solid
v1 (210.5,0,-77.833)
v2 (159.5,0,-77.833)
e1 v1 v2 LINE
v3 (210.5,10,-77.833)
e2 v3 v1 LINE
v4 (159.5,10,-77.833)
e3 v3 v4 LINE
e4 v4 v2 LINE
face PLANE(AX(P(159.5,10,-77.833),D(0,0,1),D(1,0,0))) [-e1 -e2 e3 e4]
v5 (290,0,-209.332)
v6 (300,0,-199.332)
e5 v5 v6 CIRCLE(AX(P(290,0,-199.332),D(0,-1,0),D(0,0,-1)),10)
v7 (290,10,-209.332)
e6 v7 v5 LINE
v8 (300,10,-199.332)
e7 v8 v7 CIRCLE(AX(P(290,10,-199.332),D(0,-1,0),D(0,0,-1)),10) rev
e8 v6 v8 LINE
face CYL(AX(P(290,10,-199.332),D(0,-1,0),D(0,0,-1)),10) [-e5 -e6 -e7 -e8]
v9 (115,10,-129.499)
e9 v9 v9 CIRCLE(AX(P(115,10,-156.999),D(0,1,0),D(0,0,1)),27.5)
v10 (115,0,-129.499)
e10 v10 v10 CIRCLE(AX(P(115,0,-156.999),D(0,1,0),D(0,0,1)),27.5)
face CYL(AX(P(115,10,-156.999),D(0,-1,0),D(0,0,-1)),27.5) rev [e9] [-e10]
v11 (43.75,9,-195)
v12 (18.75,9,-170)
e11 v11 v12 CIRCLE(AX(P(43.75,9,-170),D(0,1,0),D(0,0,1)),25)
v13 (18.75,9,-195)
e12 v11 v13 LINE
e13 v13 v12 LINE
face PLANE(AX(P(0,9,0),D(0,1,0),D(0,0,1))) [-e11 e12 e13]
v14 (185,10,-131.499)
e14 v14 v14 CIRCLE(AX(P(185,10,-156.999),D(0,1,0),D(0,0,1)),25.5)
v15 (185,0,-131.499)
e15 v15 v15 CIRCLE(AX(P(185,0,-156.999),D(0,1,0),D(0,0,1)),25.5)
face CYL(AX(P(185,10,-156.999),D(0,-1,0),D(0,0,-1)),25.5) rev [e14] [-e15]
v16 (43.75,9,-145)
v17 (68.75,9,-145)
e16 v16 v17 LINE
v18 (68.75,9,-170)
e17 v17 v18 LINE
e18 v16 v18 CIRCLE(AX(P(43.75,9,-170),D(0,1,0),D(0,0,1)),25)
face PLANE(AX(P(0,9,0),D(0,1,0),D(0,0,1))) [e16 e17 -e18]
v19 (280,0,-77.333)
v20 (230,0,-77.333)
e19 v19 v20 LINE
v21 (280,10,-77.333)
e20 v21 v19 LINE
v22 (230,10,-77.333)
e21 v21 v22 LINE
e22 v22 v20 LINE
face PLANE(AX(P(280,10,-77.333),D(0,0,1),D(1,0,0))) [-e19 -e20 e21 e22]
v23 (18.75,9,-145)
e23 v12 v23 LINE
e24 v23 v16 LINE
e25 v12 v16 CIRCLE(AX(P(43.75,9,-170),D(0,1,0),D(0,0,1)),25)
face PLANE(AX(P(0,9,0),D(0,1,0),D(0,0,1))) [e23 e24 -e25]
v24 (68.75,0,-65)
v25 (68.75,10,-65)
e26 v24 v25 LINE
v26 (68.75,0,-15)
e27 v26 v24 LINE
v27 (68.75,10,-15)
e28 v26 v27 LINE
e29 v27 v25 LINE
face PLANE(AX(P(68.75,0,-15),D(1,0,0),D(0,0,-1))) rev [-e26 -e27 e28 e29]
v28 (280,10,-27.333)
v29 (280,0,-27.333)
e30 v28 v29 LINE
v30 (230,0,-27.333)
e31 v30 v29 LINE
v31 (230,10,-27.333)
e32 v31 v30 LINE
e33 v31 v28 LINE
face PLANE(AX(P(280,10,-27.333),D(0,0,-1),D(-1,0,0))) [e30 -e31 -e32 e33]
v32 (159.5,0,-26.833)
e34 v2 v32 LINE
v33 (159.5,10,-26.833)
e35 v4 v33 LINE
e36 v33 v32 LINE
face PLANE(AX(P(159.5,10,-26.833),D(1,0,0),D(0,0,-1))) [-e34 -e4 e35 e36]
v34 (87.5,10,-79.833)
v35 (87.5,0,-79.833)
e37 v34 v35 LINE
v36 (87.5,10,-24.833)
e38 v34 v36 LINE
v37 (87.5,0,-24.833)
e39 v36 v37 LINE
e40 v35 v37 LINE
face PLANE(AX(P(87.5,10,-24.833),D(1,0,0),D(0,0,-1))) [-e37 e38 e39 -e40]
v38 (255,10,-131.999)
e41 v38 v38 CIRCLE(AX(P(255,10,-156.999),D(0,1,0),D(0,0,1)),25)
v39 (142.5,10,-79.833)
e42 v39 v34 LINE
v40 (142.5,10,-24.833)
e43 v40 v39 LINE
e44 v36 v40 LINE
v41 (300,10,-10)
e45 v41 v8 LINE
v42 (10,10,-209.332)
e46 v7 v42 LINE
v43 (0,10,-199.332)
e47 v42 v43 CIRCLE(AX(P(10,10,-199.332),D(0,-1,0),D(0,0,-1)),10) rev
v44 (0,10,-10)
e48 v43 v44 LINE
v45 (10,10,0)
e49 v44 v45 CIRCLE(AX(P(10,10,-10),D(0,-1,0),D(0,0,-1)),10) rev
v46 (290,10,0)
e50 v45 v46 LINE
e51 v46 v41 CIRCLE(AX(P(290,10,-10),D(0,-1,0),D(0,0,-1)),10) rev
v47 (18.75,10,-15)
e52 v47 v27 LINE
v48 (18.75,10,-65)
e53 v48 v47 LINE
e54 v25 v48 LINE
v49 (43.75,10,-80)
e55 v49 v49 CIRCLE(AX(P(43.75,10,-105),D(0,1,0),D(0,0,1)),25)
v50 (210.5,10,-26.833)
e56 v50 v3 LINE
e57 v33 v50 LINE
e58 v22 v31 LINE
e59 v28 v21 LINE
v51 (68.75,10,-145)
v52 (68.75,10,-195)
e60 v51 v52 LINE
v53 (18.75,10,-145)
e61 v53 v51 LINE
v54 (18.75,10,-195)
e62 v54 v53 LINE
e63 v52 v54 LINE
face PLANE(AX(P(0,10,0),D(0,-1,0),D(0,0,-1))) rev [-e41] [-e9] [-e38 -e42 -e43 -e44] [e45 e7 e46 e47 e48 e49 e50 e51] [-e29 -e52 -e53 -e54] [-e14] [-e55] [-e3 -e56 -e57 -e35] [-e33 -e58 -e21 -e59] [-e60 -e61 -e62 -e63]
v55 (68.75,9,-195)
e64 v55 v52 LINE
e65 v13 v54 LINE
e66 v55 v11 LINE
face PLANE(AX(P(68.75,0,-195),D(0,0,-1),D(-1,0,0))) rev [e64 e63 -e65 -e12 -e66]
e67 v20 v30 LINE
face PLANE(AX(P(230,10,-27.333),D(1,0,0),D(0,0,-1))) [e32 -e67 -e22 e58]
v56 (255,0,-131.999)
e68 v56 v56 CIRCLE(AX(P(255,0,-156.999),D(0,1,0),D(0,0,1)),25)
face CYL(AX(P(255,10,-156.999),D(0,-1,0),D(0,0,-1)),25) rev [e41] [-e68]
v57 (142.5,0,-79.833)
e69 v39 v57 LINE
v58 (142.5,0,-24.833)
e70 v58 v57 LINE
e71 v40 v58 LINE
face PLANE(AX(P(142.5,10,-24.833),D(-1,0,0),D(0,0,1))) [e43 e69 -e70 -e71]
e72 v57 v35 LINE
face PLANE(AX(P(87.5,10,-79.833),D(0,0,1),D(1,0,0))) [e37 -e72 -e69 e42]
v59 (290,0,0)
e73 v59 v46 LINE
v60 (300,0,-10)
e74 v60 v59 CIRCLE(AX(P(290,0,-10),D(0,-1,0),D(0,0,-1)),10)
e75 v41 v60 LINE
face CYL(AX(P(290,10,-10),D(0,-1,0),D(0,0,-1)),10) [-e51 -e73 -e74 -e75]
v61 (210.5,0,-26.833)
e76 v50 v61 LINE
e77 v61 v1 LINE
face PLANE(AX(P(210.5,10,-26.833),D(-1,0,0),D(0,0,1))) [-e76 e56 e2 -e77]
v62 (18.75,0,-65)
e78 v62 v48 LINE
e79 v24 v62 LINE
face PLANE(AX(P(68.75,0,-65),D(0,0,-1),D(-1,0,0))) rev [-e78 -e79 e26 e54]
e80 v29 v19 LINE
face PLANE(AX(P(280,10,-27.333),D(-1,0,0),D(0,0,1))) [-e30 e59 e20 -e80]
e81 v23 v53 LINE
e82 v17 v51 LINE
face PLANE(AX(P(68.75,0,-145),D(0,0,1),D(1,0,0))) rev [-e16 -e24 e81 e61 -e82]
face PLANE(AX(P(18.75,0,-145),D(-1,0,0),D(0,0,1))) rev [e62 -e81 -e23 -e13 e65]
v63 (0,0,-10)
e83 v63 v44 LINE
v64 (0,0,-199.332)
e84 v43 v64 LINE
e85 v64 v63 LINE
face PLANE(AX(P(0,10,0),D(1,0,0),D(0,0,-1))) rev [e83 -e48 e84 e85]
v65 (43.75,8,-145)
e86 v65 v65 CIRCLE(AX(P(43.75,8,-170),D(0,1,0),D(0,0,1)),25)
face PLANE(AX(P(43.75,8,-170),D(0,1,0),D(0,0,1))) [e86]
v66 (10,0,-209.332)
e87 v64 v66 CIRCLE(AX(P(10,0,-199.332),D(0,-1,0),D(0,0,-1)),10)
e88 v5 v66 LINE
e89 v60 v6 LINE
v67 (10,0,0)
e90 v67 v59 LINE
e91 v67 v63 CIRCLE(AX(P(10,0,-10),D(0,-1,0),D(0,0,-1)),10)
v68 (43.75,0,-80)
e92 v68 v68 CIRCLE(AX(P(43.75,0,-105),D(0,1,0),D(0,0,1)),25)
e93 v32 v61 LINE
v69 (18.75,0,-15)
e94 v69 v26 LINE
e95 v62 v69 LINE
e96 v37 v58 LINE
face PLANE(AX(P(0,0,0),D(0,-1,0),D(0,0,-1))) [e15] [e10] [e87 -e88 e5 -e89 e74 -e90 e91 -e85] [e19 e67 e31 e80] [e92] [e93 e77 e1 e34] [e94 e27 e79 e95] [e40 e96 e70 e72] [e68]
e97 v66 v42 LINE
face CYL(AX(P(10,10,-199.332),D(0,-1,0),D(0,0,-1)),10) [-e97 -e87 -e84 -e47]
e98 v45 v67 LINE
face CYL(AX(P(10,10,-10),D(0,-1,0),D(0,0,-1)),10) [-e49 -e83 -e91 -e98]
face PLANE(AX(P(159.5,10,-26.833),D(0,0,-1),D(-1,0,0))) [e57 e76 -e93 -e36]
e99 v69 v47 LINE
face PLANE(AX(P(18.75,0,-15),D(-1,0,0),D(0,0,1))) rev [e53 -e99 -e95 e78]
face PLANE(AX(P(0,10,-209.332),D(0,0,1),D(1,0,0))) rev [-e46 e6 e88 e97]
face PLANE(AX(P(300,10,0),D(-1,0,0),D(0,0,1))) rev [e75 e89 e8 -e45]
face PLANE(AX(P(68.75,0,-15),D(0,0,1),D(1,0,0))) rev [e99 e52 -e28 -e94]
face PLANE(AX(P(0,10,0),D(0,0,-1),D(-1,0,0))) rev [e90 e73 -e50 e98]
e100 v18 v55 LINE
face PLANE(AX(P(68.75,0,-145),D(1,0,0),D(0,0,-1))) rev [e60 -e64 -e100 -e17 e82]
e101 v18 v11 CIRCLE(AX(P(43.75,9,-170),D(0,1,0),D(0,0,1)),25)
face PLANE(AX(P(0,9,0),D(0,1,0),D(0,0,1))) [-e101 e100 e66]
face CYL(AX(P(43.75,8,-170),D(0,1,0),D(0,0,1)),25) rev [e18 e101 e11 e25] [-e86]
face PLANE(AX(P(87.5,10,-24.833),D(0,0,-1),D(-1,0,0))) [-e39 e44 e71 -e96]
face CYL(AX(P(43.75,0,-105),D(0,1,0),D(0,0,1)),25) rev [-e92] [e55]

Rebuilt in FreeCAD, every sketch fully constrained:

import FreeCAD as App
import Part
import Sketcher

V = App.Vector


def edges_at(feature, points):
    """Names of the edges that pass closest to the given points."""
    edges = feature.Shape.Edges
    near = lambda p: min(range(len(edges)), key=lambda i: edges[i].distToShape(Part.Vertex(*p))[0])
    return sorted({f"Edge{near(p) + 1}" for p in points})


def add_polygon(sketch, points):
    """Adds a closed chain of lines whose ends are joined by coincident constraints."""
    first, n = sketch.GeometryCount, len(points)
    for a, b in zip(points, points[1:] + points[:1]):
        sketch.addGeometry(Part.LineSegment(App.Vector(*a, 0), App.Vector(*b, 0)), False)
    for i in range(n):
        sketch.addConstraint(Sketcher.Constraint("Coincident", first + i, 2, first + (i + 1) % n, 1))

doc = App.newDocument("Part")
params = doc.addObject("Spreadsheet::Sheet", "Params")
for row, (alias, value) in enumerate([
    ("sketch1_diameter", "50 mm"),
    ("sketch1_diameter2", "55 mm"),
    ("sketch1_diameter3", "51 mm"),
    ("sketch1_width", "300 mm"),
    ("sketch1_width2", "55 mm"),
    ("pad1_length", "10 mm"),
    ("sketch2_width", "50 mm"),
    ("pocket1_length", "1 mm"),
    ("sketch3_diameter", "50 mm"),
    ("pad2_length", "8 mm"),
    ("sketch4_width", "50 mm"),
    ("fillet_radius", "10 mm"),
    ("sketch5_width", "50 mm"),
    ("pad3_length", "10 mm"),
    ("sketch6_diameter", "50 mm"),
    ("sketch6_width", "50 mm"),
    ("sketch7_width", "50 mm"),
    ("pad4_length", "9 mm"),
    ("sketch8_diameter", "50 mm"),
    ("pocket4_length", "1 mm"),
], start=1):
    params.set(f"A{row}", alias)
    params.set(f"B{row}", "=" + value)
    params.setAlias(f"B{row}", alias)

body = doc.addObject("PartDesign::Body", "Body")

# Sketch on XZ plane
sketch1 = doc.addObject("Sketcher::SketchObject", "Sketch")
body.addObject(sketch1)
sketch1.AttachmentSupport = (doc.XZ_Plane, [""])
sketch1.MapMode = "FlatFace"
add_polygon(sketch1, [(0, -209), (0, 0), (300, 0), (300, -209)])  # lines 0-3
sketch1.addGeometry(Part.Circle(V(45, -52, 0), V(0, 0, 1), 25), False)  # 4
add_polygon(sketch1, [(142, -25), (88, -25), (88, -80), (142, -80)])  # lines 5-8
add_polygon(sketch1, [(210, -27), (160, -27), (160, -78), (210, -78)])  # lines 9-12
add_polygon(sketch1, [(280, -27), (230, -27), (230, -77), (280, -77)])  # lines 13-16
sketch1.addGeometry(Part.Circle(V(45, -157, 0), V(0, 0, 1), 25), False)  # 17
sketch1.addGeometry(Part.Circle(V(115, -157, 0), V(0, 0, 1), 28), False)  # 18
sketch1.addGeometry(Part.Circle(V(185, -157, 0), V(0, 0, 1), 26), False)  # 19
sketch1.addGeometry(Part.Circle(V(255, -157, 0), V(0, 0, 1), 25), False)  # 20
sketch1.addConstraint([
    Sketcher.Constraint("Vertical", 0),
    Sketcher.Constraint("Horizontal", 1),
    Sketcher.Constraint("Vertical", 2),
    Sketcher.Constraint("Horizontal", 3),
    Sketcher.Constraint("Horizontal", 5),
    Sketcher.Constraint("Vertical", 6),
    Sketcher.Constraint("Horizontal", 7),
    Sketcher.Constraint("Vertical", 8),
    Sketcher.Constraint("Horizontal", 9),
    Sketcher.Constraint("Vertical", 10),
    Sketcher.Constraint("Horizontal", 11),
    Sketcher.Constraint("Vertical", 12),
    Sketcher.Constraint("Horizontal", 13),
    Sketcher.Constraint("Vertical", 14),
    Sketcher.Constraint("Horizontal", 15),
    Sketcher.Constraint("Vertical", 16),
    Sketcher.Constraint("Coincident", 0, 2, -1, 1),
    Sketcher.Constraint("Equal", 4, 17),
    Sketcher.Constraint("Equal", 17, 20),
    Sketcher.Constraint("Horizontal", 17, 3, 18, 3),
    Sketcher.Constraint("Horizontal", 18, 3, 19, 3),
    Sketcher.Constraint("Horizontal", 19, 3, 20, 3),
    Sketcher.Constraint("Vertical", 4, 3, 17, 3),
    Sketcher.Constraint("Equal", 7, 6),
    Sketcher.Constraint("Equal", 11, 10),
    Sketcher.Constraint("Equal", 15, 14),
    Sketcher.Constraint("Diameter", 4, 50.0),
    Sketcher.Constraint("Diameter", 18, 55.0),
    Sketcher.Constraint("Diameter", 19, 51.0),
    Sketcher.Constraint("DistanceX", 1, 1, 1, 2, 300.0),
    Sketcher.Constraint("DistanceX", 5, 2, 5, 1, 55.0),
    Sketcher.Constraint("DistanceX", 9, 2, 9, 1, 51.0),
    Sketcher.Constraint("DistanceX", 13, 2, 13, 1, 50.0),
    Sketcher.Constraint("DistanceX", -1, 1, 4, 3, 45.0),
    Sketcher.Constraint("DistanceX", -1, 1, 18, 3, 115.0),
    Sketcher.Constraint("DistanceX", -1, 1, 19, 3, 185.0),
    Sketcher.Constraint("DistanceX", -1, 1, 20, 3, 255.0),
    Sketcher.Constraint("DistanceX", -1, 1, 13, 2, 230.0),
    Sketcher.Constraint("DistanceX", 8, 2, 9, 2, 17.0),
    Sketcher.Constraint("DistanceY", 9, 2, 8, 2, 2.0),
    Sketcher.Constraint("DistanceX", -1, 1, 5, 2, 87.5),
    Sketcher.Constraint("DistanceY", 4, 3, 5, 2, 27.5),
    Sketcher.Constraint("DistanceY", 13, 2, 12, 2, 0.5),
    Sketcher.Constraint("DistanceY", 0, 1, 0, 2, 209.332),
    Sketcher.Constraint("DistanceY", 4, 3, -1, 1, 52.333),
    Sketcher.Constraint("DistanceY", 17, 3, -1, 1, 156.999),
])
sketch1.setExpression("Constraints[42]", "Params.sketch1_diameter")
sketch1.setExpression("Constraints[43]", "Params.sketch1_diameter2")
sketch1.setExpression("Constraints[44]", "Params.sketch1_diameter3")
sketch1.setExpression("Constraints[45]", "Params.sketch1_width")
sketch1.setExpression("Constraints[46]", "Params.sketch1_width2")
pad1 = doc.addObject("PartDesign::Pad", "Pad")
body.addObject(pad1)
pad1.Profile = sketch1
pad1.setExpression("Length", "Params.pad1_length")
pad1.Reversed = True

# Sketch on XZ plane
sketch2 = doc.addObject("Sketcher::SketchObject", "Sketch001")
body.addObject(sketch2)
sketch2.AttachmentSupport = (doc.XZ_Plane, [""])
sketch2.MapMode = "FlatFace"
sketch2.AttachmentOffset = App.Placement(V(0, 0, -10), App.Rotation())
add_polygon(sketch2, [(20, -182), (20, -132), (70, -132), (70, -182)])  # lines 0-3
sketch2.addConstraint([
    Sketcher.Constraint("Vertical", 0),
    Sketcher.Constraint("Horizontal", 1),
    Sketcher.Constraint("Vertical", 2),
    Sketcher.Constraint("Horizontal", 3),
    Sketcher.Constraint("Equal", 3, 0),
    Sketcher.Constraint("DistanceX", 1, 1, 1, 2, 50.0),
    Sketcher.Constraint("DistanceX", -1, 1, 0, 2, 20.0),
    Sketcher.Constraint("DistanceY", 0, 2, -1, 1, 131.999),
])
sketch2.setExpression("Constraints[9]", "Params.sketch2_width")
pocket1 = doc.addObject("PartDesign::Pocket", "Pocket")
body.addObject(pocket1)
pocket1.Profile = sketch2
pocket1.setExpression("Length", "Params.pocket1_length")
pocket1.Reversed = True

# Sketch on XZ plane
sketch3 = doc.addObject("Sketcher::SketchObject", "Sketch002")
body.addObject(sketch3)
sketch3.AttachmentSupport = (doc.XZ_Plane, [""])
sketch3.MapMode = "FlatFace"
sketch3.addGeometry(Part.Circle(V(45, -157, 0), V(0, 0, 1), 25), False)
sketch3.addConstraint([
    Sketcher.Constraint("Diameter", 0, 50.0),
    Sketcher.Constraint("DistanceX", -1, 1, 0, 3, 45.0),
    Sketcher.Constraint("DistanceY", 0, 3, -1, 1, 156.999),
])
sketch3.setExpression("Constraints[0]", "Params.sketch3_diameter")
pad2 = doc.addObject("PartDesign::Pad", "Pad001")
body.addObject(pad2)
pad2.Profile = sketch3
pad2.setExpression("Length", "Params.pad2_length")
pad2.Reversed = True

# Sketch on XZ plane
sketch4 = doc.addObject("Sketcher::SketchObject", "Sketch003")
body.addObject(sketch4)
sketch4.AttachmentSupport = (doc.XZ_Plane, [""])
sketch4.MapMode = "FlatFace"
sketch4.AttachmentOffset = App.Placement(V(0, 0, -10), App.Rotation())
add_polygon(sketch4, [(20, -77), (20, -27), (70, -27), (70, -77)])  # lines 0-3
sketch4.addConstraint([
    Sketcher.Constraint("Vertical", 0),
    Sketcher.Constraint("Horizontal", 1),
    Sketcher.Constraint("Vertical", 2),
    Sketcher.Constraint("Horizontal", 3),
    Sketcher.Constraint("Equal", 3, 0),
    Sketcher.Constraint("DistanceX", 1, 1, 1, 2, 50.0),
    Sketcher.Constraint("DistanceX", -1, 1, 0, 2, 20.0),
    Sketcher.Constraint("DistanceY", 0, 2, -1, 1, 27.333),
])
sketch4.setExpression("Constraints[9]", "Params.sketch4_width")
pocket2 = doc.addObject("PartDesign::Pocket", "Pocket001")
body.addObject(pocket2)
pocket2.Profile = sketch4
pocket2.Type = "ThroughAll"
pocket2.Reversed = True
doc.recompute()

fillet = doc.addObject("PartDesign::Fillet", "Fillet")
body.addObject(fillet)
fillet.Base = (pocket2, edges_at(pocket2, [
    (0, 5, -209.332),
    (300, 5, -209.332),
    (300, 5, 0),
    (0, 5, 0),
]))
fillet.setExpression("Radius", "Params.fillet_radius")

# Sketch on XZ plane
sketch5 = doc.addObject("Sketcher::SketchObject", "Sketch004")
body.addObject(sketch5)
sketch5.AttachmentSupport = (doc.XZ_Plane, [""])
sketch5.MapMode = "FlatFace"
sketch5.AttachmentOffset = App.Placement(V(0, 0, -10), App.Rotation())
add_polygon(sketch5, [(20, -182), (20, -132), (70, -132), (70, -182)])  # lines 0-3
add_polygon(sketch5, [(20, -77), (20, -27), (70, -27), (70, -77)])  # lines 4-7
sketch5.addConstraint([
    Sketcher.Constraint("Vertical", 0),
    Sketcher.Constraint("Horizontal", 1),
    Sketcher.Constraint("Vertical", 2),
    Sketcher.Constraint("Horizontal", 3),
    Sketcher.Constraint("Vertical", 4),
    Sketcher.Constraint("Horizontal", 5),
    Sketcher.Constraint("Vertical", 6),
    Sketcher.Constraint("Horizontal", 7),
    Sketcher.Constraint("Vertical", 3, 2, 4, 2),
    Sketcher.Constraint("Vertical", 2, 2, 5, 2),
    Sketcher.Constraint("Equal", 7, 0),
    Sketcher.Constraint("Equal", 2, 4),
    Sketcher.Constraint("DistanceX", 1, 1, 1, 2, 50.0),
    Sketcher.Constraint("DistanceX", -1, 1, 0, 2, 20.0),
    Sketcher.Constraint("DistanceY", 0, 2, -1, 1, 131.999),
    Sketcher.Constraint("DistanceY", 4, 2, -1, 1, 27.333),
])
sketch5.setExpression("Constraints[20]", "Params.sketch5_width")
pad3 = doc.addObject("PartDesign::Pad", "Pad002")
body.addObject(pad3)
pad3.Profile = sketch5
pad3.setExpression("Length", "Params.pad3_length")

# Sketch on XZ plane
sketch6 = doc.addObject("Sketcher::SketchObject", "Sketch005")
body.addObject(sketch6)
sketch6.AttachmentSupport = (doc.XZ_Plane, [""])
sketch6.MapMode = "FlatFace"
sketch6.AttachmentOffset = App.Placement(V(0, 0, -10), App.Rotation())
sketch6.addGeometry(Part.Circle(V(44, -105, 0), V(0, 0, 1), 25), False)  # 0
add_polygon(sketch6, [(19, -65), (19, -15), (69, -15), (69, -65)])  # lines 1-4
add_polygon(sketch6, [(19, -195), (19, -145), (69, -145), (69, -195)])  # lines 5-8
sketch6.addConstraint([
    Sketcher.Constraint("Vertical", 1),
    Sketcher.Constraint("Horizontal", 2),
    Sketcher.Constraint("Vertical", 3),
    Sketcher.Constraint("Horizontal", 4),
    Sketcher.Constraint("Vertical", 5),
    Sketcher.Constraint("Horizontal", 6),
    Sketcher.Constraint("Vertical", 7),
    Sketcher.Constraint("Horizontal", 8),
    Sketcher.Constraint("Vertical", 4, 2, 5, 2),
    Sketcher.Constraint("Vertical", 3, 2, 6, 2),
    Sketcher.Constraint("Equal", 8, 1),
    Sketcher.Constraint("Equal", 3, 5),
    Sketcher.Constraint("Diameter", 0, 50.0),
    Sketcher.Constraint("DistanceX", 2, 1, 2, 2, 50.0),
    Sketcher.Constraint("DistanceY", 0, 3, -1, 1, 105.0),
    Sketcher.Constraint("DistanceY", 1, 2, -1, 1, 15.0),
    Sketcher.Constraint("DistanceY", 5, 2, -1, 1, 145.0),
    Sketcher.Constraint("DistanceX", 1, 2, 0, 3, 25.0),
    Sketcher.Constraint("DistanceX", -1, 1, 0, 3, 43.75),
])
sketch6.setExpression("Constraints[20]", "Params.sketch6_diameter")
sketch6.setExpression("Constraints[21]", "Params.sketch6_width")
pocket3 = doc.addObject("PartDesign::Pocket", "Pocket002")
body.addObject(pocket3)
pocket3.Profile = sketch6
pocket3.Type = "ThroughAll"
pocket3.Reversed = True

# Sketch on XZ plane
sketch7 = doc.addObject("Sketcher::SketchObject", "Sketch006")
body.addObject(sketch7)
sketch7.AttachmentSupport = (doc.XZ_Plane, [""])
sketch7.MapMode = "FlatFace"
sketch7.AttachmentOffset = App.Placement(V(0, 0, -9), App.Rotation())
add_polygon(sketch7, [(19, -195), (19, -145), (69, -145), (69, -195)])  # lines 0-3
sketch7.addConstraint([
    Sketcher.Constraint("Vertical", 0),
    Sketcher.Constraint("Horizontal", 1),
    Sketcher.Constraint("Vertical", 2),
    Sketcher.Constraint("Horizontal", 3),
    Sketcher.Constraint("Equal", 3, 0),
    Sketcher.Constraint("DistanceX", 1, 1, 1, 2, 50.0),
    Sketcher.Constraint("DistanceY", 0, 2, -1, 1, 145.0),
    Sketcher.Constraint("DistanceX", -1, 1, 0, 2, 18.75),
])
sketch7.setExpression("Constraints[9]", "Params.sketch7_width")
pad4 = doc.addObject("PartDesign::Pad", "Pad003")
body.addObject(pad4)
pad4.Profile = sketch7
pad4.setExpression("Length", "Params.pad4_length")

# Sketch on XZ plane
sketch8 = doc.addObject("Sketcher::SketchObject", "Sketch007")
body.addObject(sketch8)
sketch8.AttachmentSupport = (doc.XZ_Plane, [""])
sketch8.MapMode = "FlatFace"
sketch8.AttachmentOffset = App.Placement(V(0, 0, -9), App.Rotation())
sketch8.addGeometry(Part.Circle(V(44, -170, 0), V(0, 0, 1), 25), False)
sketch8.addConstraint([
    Sketcher.Constraint("Diameter", 0, 50.0),
    Sketcher.Constraint("DistanceY", 0, 3, -1, 1, 170.0),
    Sketcher.Constraint("DistanceX", -1, 1, 0, 3, 43.75),
])
sketch8.setExpression("Constraints[0]", "Params.sketch8_diameter")
pocket4 = doc.addObject("PartDesign::Pocket", "Pocket003")
body.addObject(pocket4)
pocket4.Profile = sketch8
pocket4.setExpression("Length", "Params.pocket4_length")
pocket4.Reversed = True

doc.recompute()
